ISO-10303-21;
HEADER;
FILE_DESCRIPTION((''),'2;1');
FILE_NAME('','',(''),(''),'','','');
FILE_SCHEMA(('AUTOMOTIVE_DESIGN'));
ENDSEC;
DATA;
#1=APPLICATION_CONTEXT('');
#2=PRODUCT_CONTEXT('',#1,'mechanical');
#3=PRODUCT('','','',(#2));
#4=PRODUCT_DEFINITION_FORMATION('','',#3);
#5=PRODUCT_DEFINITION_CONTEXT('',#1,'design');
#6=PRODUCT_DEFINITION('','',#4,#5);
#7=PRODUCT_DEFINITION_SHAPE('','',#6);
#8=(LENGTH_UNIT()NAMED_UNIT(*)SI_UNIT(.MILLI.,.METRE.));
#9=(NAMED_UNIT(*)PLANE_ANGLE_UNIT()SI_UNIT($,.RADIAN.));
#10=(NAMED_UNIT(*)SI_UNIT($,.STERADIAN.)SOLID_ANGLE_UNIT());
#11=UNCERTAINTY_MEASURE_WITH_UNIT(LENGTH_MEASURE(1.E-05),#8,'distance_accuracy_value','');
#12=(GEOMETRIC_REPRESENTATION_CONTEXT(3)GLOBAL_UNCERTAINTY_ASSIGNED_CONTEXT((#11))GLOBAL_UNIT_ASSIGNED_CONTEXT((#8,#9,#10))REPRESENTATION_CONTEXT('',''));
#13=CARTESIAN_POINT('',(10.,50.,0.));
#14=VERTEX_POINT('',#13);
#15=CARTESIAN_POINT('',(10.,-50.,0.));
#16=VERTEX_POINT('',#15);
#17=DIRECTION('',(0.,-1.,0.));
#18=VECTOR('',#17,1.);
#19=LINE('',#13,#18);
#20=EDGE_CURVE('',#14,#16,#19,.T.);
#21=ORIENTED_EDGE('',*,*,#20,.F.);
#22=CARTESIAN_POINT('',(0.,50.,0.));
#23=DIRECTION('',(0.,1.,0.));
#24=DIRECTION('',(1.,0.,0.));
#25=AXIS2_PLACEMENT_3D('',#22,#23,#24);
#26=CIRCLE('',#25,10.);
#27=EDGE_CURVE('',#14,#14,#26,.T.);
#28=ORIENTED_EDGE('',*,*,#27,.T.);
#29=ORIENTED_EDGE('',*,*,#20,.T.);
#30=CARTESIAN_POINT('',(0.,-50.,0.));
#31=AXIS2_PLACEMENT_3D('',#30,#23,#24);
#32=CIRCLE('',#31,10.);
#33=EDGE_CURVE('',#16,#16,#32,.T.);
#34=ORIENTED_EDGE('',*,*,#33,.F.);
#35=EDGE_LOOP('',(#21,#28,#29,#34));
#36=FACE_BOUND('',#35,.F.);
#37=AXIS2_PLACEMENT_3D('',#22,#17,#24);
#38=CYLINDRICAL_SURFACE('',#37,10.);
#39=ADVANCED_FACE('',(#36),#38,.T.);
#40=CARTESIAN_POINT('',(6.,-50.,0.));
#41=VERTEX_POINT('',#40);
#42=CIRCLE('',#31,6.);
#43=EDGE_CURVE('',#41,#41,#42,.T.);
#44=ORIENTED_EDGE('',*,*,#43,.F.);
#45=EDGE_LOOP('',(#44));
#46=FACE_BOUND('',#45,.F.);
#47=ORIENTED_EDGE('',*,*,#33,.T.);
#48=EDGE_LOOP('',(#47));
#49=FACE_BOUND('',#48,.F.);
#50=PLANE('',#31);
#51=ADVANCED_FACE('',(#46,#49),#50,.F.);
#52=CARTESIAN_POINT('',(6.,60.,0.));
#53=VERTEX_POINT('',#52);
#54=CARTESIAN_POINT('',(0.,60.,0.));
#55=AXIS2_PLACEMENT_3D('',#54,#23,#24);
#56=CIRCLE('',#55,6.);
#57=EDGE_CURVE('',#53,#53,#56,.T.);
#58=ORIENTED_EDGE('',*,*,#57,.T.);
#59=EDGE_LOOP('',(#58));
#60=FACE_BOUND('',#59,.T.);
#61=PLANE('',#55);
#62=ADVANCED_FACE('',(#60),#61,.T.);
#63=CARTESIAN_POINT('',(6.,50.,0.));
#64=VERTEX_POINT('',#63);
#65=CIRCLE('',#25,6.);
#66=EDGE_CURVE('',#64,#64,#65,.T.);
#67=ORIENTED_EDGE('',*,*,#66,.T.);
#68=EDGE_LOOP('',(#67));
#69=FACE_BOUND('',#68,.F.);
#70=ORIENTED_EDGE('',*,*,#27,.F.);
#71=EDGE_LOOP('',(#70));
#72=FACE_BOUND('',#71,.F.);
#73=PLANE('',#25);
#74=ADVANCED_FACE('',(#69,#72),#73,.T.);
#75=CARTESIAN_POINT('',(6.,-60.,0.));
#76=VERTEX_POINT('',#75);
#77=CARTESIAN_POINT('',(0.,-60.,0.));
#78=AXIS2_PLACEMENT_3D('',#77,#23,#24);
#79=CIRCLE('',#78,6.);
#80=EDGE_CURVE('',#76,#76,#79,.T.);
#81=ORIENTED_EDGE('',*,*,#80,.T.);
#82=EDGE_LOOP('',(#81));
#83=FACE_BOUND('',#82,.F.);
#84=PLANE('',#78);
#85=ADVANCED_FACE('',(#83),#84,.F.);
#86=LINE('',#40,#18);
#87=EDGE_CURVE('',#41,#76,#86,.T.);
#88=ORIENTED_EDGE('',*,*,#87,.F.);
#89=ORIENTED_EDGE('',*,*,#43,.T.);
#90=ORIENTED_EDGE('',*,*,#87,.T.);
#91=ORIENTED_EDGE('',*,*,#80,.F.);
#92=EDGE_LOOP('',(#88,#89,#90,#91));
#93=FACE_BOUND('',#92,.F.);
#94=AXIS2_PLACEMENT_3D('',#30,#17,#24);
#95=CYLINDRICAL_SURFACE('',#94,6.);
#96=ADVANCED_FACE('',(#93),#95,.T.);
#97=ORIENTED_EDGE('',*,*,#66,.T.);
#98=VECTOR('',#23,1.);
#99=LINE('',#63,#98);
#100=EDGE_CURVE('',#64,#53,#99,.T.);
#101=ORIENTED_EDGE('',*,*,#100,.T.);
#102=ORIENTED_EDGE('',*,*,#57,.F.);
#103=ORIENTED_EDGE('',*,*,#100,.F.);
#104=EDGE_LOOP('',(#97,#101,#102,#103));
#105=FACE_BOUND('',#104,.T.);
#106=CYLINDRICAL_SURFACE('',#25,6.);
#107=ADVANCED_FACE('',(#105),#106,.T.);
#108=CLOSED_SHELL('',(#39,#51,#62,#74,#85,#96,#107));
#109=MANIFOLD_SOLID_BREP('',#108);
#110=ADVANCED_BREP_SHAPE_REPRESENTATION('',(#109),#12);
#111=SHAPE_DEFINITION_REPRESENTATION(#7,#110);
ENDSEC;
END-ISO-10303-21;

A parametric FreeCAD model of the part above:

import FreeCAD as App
import Part
import Sketcher
from FreeCAD import Vector


def add_polygon(sketch, points):
    """Adds a closed chain of lines whose ends are joined by coincident constraints."""
    first, n = sketch.GeometryCount, len(points)
    for a, b in zip(points, points[1:] + points[:1]):
        sketch.addGeometry(Part.LineSegment(App.Vector(*a, 0), App.Vector(*b, 0)), False)
    for i in range(n):
        sketch.addConstraint(Sketcher.Constraint("Coincident", first + i, 2, first + (i + 1) % n, 1))

doc = App.newDocument("Part")
body = doc.addObject("PartDesign::Body", "Body")

# Sketch on XY plane
sketch1 = body.newObject("Sketcher::SketchObject", "Sketch")
sketch1.AttachmentSupport = (doc.getObject("XY_Plane"), [""])
sketch1.MapMode = "FlatFace"
add_polygon(sketch1, [(0, 60), (0, -60), (6, -60), (6, -50), (10, -50), (10, 50), (6, 50), (6, 60)])  # lines 0-7
sketch1.addConstraint([
    Sketcher.Constraint("Vertical", 0),
    Sketcher.Constraint("Horizontal", 1),
    Sketcher.Constraint("Vertical", 2),
    Sketcher.Constraint("Horizontal", 3),
    Sketcher.Constraint("Vertical", 4),
    Sketcher.Constraint("Horizontal", 5),
    Sketcher.Constraint("Vertical", 6),
    Sketcher.Constraint("Horizontal", 7),
    Sketcher.Constraint("Symmetric", 0, 2, 7, 2, -1, 1),
    Sketcher.Constraint("Symmetric", 2, 2, 5, 2, -1),
    Sketcher.Constraint("DistanceX", 1, 1, 1, 2, 6.0),
    Sketcher.Constraint("DistanceY", 0, 2, 0, 1, 120.0),
    Sketcher.Constraint("DistanceY", 2, 1, 2, 2, 10.0),
    Sketcher.Constraint("DistanceX", -1, 1, 3, 2, 10.0),
])
revolution = body.newObject("PartDesign::Revolution", "Revolution")
revolution.Profile = sketch1
revolution.ReferenceAxis = (sketch1, ["V_Axis"])
revolution.Angle = 360

doc.recompute()
